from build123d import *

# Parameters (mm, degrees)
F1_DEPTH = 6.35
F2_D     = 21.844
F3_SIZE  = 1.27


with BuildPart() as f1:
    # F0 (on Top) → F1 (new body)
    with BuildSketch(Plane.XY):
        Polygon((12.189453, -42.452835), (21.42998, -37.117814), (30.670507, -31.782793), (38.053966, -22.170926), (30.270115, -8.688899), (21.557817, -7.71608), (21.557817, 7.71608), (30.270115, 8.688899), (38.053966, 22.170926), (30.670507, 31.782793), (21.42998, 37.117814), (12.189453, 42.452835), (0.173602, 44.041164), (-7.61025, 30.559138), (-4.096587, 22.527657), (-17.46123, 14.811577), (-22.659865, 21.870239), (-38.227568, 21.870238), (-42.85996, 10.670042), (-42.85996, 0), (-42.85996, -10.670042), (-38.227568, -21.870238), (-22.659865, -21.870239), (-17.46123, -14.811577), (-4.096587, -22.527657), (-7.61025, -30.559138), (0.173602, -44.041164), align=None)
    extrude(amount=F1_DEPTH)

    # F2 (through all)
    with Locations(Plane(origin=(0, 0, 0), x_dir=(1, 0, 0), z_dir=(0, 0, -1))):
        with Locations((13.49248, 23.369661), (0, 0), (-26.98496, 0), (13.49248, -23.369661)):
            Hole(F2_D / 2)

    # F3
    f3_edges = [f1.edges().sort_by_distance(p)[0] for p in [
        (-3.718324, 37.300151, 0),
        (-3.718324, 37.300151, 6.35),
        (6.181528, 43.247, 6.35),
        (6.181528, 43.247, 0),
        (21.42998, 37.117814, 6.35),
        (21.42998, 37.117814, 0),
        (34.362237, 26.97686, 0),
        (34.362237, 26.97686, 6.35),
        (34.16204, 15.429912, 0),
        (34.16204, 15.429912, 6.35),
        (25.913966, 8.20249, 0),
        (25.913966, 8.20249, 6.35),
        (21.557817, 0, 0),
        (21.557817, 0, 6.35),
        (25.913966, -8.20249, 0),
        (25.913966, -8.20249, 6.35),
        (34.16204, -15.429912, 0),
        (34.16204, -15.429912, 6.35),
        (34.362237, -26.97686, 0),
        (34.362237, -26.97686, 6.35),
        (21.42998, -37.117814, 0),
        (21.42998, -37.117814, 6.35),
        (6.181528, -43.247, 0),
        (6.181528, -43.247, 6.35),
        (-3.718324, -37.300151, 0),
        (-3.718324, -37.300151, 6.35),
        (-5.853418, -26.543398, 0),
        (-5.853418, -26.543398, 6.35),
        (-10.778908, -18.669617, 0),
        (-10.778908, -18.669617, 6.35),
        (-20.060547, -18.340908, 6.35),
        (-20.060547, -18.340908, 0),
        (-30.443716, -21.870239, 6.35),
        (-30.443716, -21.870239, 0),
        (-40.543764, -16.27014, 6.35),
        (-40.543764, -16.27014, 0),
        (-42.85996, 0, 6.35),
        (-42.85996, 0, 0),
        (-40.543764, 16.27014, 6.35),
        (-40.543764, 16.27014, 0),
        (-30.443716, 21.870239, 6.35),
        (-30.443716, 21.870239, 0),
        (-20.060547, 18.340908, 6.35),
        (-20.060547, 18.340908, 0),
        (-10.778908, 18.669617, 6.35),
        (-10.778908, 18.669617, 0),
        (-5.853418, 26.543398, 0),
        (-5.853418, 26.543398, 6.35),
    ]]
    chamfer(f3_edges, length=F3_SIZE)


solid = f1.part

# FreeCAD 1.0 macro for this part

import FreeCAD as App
import Part
import Sketcher
Q = App.Units.Quantity


def edges_at(feature, points):
    """Names of the edges that pass closest to the given points."""
    edges = feature.Shape.Edges
    near = lambda p: min(range(len(edges)), key=lambda i: edges[i].distToShape(Part.Vertex(*p))[0])
    return sorted({f"Edge{near(p) + 1}" for p in points})

doc = App.newDocument("Part")
body = doc.addObject("PartDesign::Body", "Body")

# Sketch on XY plane
sketch1 = doc.addObject("Sketcher::SketchObject", "Sketch")
body.addObject(sketch1)
sketch1.AttachmentSupport = (doc.XY_Plane, [""])
sketch1.MapMode = "FlatFace"
sketch1.addGeometry(Part.LineSegment(App.Vector(12, -42, 0), App.Vector(31, -32, 0)), False)
sketch1.addGeometry(Part.LineSegment(App.Vector(31, -32, 0), App.Vector(38, -22, 0)), False)
sketch1.addGeometry(Part.LineSegment(App.Vector(38, -22, 0), App.Vector(30, -9, 0)), False)
sketch1.addGeometry(Part.LineSegment(App.Vector(30, -9, 0), App.Vector(22, -8, 0)), False)
sketch1.addGeometry(Part.LineSegment(App.Vector(22, -8, 0), App.Vector(22, 8, 0)), False)
sketch1.addGeometry(Part.LineSegment(App.Vector(22, 8, 0), App.Vector(30, 9, 0)), False)
sketch1.addGeometry(Part.LineSegment(App.Vector(30, 9, 0), App.Vector(38, 22, 0)), False)
sketch1.addGeometry(Part.LineSegment(App.Vector(38, 22, 0), App.Vector(31, 32, 0)), False)
sketch1.addGeometry(Part.LineSegment(App.Vector(31, 32, 0), App.Vector(12, 42, 0)), False)
sketch1.addGeometry(Part.LineSegment(App.Vector(12, 42, 0), App.Vector(0, 44, 0)), False)
sketch1.addGeometry(Part.LineSegment(App.Vector(0, 44, 0), App.Vector(-8, 31, 0)), False)
sketch1.addGeometry(Part.LineSegment(App.Vector(-8, 31, 0), App.Vector(-4, 23, 0)), False)
sketch1.addGeometry(Part.LineSegment(App.Vector(-4, 23, 0), App.Vector(-17, 15, 0)), False)
sketch1.addGeometry(Part.LineSegment(App.Vector(-17, 15, 0), App.Vector(-23, 22, 0)), False)
sketch1.addGeometry(Part.LineSegment(App.Vector(-23, 22, 0), App.Vector(-38, 22, 0)), False)
sketch1.addGeometry(Part.LineSegment(App.Vector(-38, 22, 0), App.Vector(-43, 11, 0)), False)
sketch1.addGeometry(Part.LineSegment(App.Vector(-43, 11, 0), App.Vector(-43, -11, 0)), False)
sketch1.addGeometry(Part.LineSegment(App.Vector(-43, -11, 0), App.Vector(-38, -22, 0)), False)
sketch1.addGeometry(Part.LineSegment(App.Vector(-38, -22, 0), App.Vector(-23, -22, 0)), False)
sketch1.addGeometry(Part.LineSegment(App.Vector(-23, -22, 0), App.Vector(-17, -15, 0)), False)
sketch1.addGeometry(Part.LineSegment(App.Vector(-17, -15, 0), App.Vector(-4, -23, 0)), False)
sketch1.addGeometry(Part.LineSegment(App.Vector(-4, -23, 0), App.Vector(-8, -31, 0)), False)
sketch1.addGeometry(Part.LineSegment(App.Vector(-8, -31, 0), App.Vector(0, -44, 0)), False)
sketch1.addGeometry(Part.LineSegment(App.Vector(0, -44, 0), App.Vector(12, -42, 0)), False)
sketch1.addConstraint(Sketcher.Constraint("Coincident", 0, 2, 1, 1))
sketch1.addConstraint(Sketcher.Constraint("Coincident", 1, 2, 2, 1))
sketch1.addConstraint(Sketcher.Constraint("Coincident", 2, 2, 3, 1))
sketch1.addConstraint(Sketcher.Constraint("Coincident", 3, 2, 4, 1))
sketch1.addConstraint(Sketcher.Constraint("Coincident", 4, 2, 5, 1))
sketch1.addConstraint(Sketcher.Constraint("Coincident", 5, 2, 6, 1))
sketch1.addConstraint(Sketcher.Constraint("Coincident", 6, 2, 7, 1))
sketch1.addConstraint(Sketcher.Constraint("Coincident", 7, 2, 8, 1))
sketch1.addConstraint(Sketcher.Constraint("Coincident", 8, 2, 9, 1))
sketch1.addConstraint(Sketcher.Constraint("Coincident", 9, 2, 10, 1))
sketch1.addConstraint(Sketcher.Constraint("Coincident", 10, 2, 11, 1))
sketch1.addConstraint(Sketcher.Constraint("Coincident", 11, 2, 12, 1))
sketch1.addConstraint(Sketcher.Constraint("Coincident", 12, 2, 13, 1))
sketch1.addConstraint(Sketcher.Constraint("Coincident", 13, 2, 14, 1))
sketch1.addConstraint(Sketcher.Constraint("Coincident", 14, 2, 15, 1))
sketch1.addConstraint(Sketcher.Constraint("Coincident", 15, 2, 16, 1))
sketch1.addConstraint(Sketcher.Constraint("Coincident", 16, 2, 17, 1))
sketch1.addConstraint(Sketcher.Constraint("Coincident", 17, 2, 18, 1))
sketch1.addConstraint(Sketcher.Constraint("Coincident", 18, 2, 19, 1))
sketch1.addConstraint(Sketcher.Constraint("Coincident", 19, 2, 20, 1))
sketch1.addConstraint(Sketcher.Constraint("Coincident", 20, 2, 21, 1))
sketch1.addConstraint(Sketcher.Constraint("Coincident", 21, 2, 22, 1))
sketch1.addConstraint(Sketcher.Constraint("Coincident", 22, 2, 23, 1))
sketch1.addConstraint(Sketcher.Constraint("Coincident", 23, 2, 0, 1))
sketch1.addConstraint(Sketcher.Constraint("Vertical", 4))
sketch1.addConstraint(Sketcher.Constraint("Horizontal", 14))
sketch1.addConstraint(Sketcher.Constraint("Vertical", 16))
sketch1.addConstraint(Sketcher.Constraint("Horizontal", 18))
sketch1.addConstraint(Sketcher.Constraint("Symmetric", 2, 2, 5, 2, -1))
sketch1.addConstraint(Sketcher.Constraint("Symmetric", 1, 2, 6, 2, -1))
sketch1.addConstraint(Sketcher.Constraint("Symmetric", 0, 2, 7, 2, -1))
sketch1.addConstraint(Sketcher.Constraint("Symmetric", 14, 2, 17, 2, -1))
sketch1.addConstraint(Sketcher.Constraint("Symmetric", 12, 2, 19, 2, -1))
sketch1.addConstraint(Sketcher.Constraint("Symmetric", 11, 2, 20, 2, -1))
sketch1.addConstraint(Sketcher.Constraint("Symmetric", 10, 2, 21, 2, -1))
sketch1.addConstraint(Sketcher.Constraint("Symmetric", 9, 2, 22, 2, -1))
sketch1.addConstraint(Sketcher.Constraint("Symmetric", 8, 2, 23, 2, -1))
sketch1.addConstraint(Sketcher.Constraint("Perpendicular", 0, 2))
sketch1.addConstraint(Sketcher.Constraint("Perpendicular", 8, 10))
sketch1.addConstraint(Sketcher.Constraint("Perpendicular", 2, 12))
sketch1.addConstraint(Sketcher.Constraint("Vertical", 13, 2, 18, 2))
sketch1.addConstraint(Sketcher.Constraint("Equal", 3, 5))
sketch1.addConstraint(Sketcher.Constraint("Equal", 7, 9))
sketch1.addConstraint(Sketcher.Constraint("Equal", 6, 10))
sketch1.addConstraint(Sketcher.Constraint("Equal", 5, 11))
sketch1.addConstraint(Sketcher.Constraint("Equal", 11, 13))
sketch1.addConstraint(Sketcher.Constraint("Equal", 9, 15))
sketch1.addConstraint(Sketcher.Constraint("Equal", 15, 17))
sketch1.addConstraint(Sketcher.Constraint("Angle", 0, Q("30.000001 deg")))
sketch1.addConstraint(Sketcher.Constraint("DistanceX", 15, 2, -1, 1, Q("1.6874 in")))
sketch1.addConstraint(Sketcher.Constraint("DistanceY", 2, 2, 3, 2, Q("0.0383 in")))
sketch1.addConstraint(Sketcher.Constraint("DistanceY", 11, 2, 10, 2, Q("0.3162 in")))
sketch1.addConstraint(Sketcher.Constraint("DistanceY", 12, 2, 13, 2, Q("0.2779001 in")))
sketch1.addConstraint(Sketcher.Constraint("DistanceY", 4, 1, 4, 2, Q("15.43216 mm")))
sketch1.addConstraint(Sketcher.Constraint("DistanceY", 13, 2, 10, 2, Q("8.688899 mm")))
sketch1.addConstraint(Sketcher.Constraint("DistanceY", 16, 2, 11, 2, Q("33.197699 mm")))
sketch1.addConstraint(Sketcher.Constraint("DistanceX", 14, 2, 14, 1, Q("15.567703 mm")))
sketch1.addConstraint(Sketcher.Constraint("DistanceY", 16, 2, 16, 1, Q("21.340084 mm")))
sketch1.addConstraint(Sketcher.Constraint("DistanceX", 10, 2, -1, 1, Q("7.61025 mm")))
sketch1.addConstraint(Sketcher.Constraint("DistanceX", 12, 2, -1, 1, Q("17.46123 mm")))
sketch1.addConstraint(Sketcher.Constraint("DistanceX", 0, 2, 1, 2, Q("7.383459 mm")))
sketch1.addConstraint(Sketcher.Constraint("DistanceX", 2, 2, 1, 2, Q("7.783851 mm")))
sketch1.addConstraint(Sketcher.Constraint("DistanceY", 7, 2, 8, 2, Q("10.670042 mm")))
pad1 = doc.addObject("PartDesign::Pad", "Pad")
body.addObject(pad1)
pad1.Profile = sketch1
pad1.Length = Q("0.25 in")

# Sketch on XY plane
sketch2 = doc.addObject("Sketcher::SketchObject", "Sketch001")
body.addObject(sketch2)
sketch2.AttachmentSupport = (doc.XY_Plane, [""])
sketch2.MapMode = "FlatFace"
sketch2.addGeometry(Part.Circle(App.Vector(13, -23, 0), App.Vector(0, 0, 1), 11), False)
sketch2.addGeometry(Part.Circle(App.Vector(0, 0, 0), App.Vector(0, 0, 1), 11), False)
sketch2.addGeometry(Part.Circle(App.Vector(-27, 0, 0), App.Vector(0, 0, 1), 11), False)
sketch2.addGeometry(Part.Circle(App.Vector(13, 23, 0), App.Vector(0, 0, 1), 11), False)
sketch2.addConstraint(Sketcher.Constraint("Coincident", 1, 3, -1, 1))
sketch2.addConstraint(Sketcher.Constraint("Equal", 0, 1))
sketch2.addConstraint(Sketcher.Constraint("Equal", 1, 2))
sketch2.addConstraint(Sketcher.Constraint("Equal", 2, 3))
sketch2.addConstraint(Sketcher.Constraint("Symmetric", 0, 3, 3, 3, -1))
sketch2.addConstraint(Sketcher.Constraint("PointOnObject", 2, 3, -1))
sketch2.addConstraint(Sketcher.Constraint("Diameter", 0, Q("0.86 in")))
sketch2.addConstraint(Sketcher.Constraint("DistanceX", -1, 1, 0, 3, Q("0.5312 in")))
sketch2.addConstraint(Sketcher.Constraint("DistanceX", 2, 3, -1, 1, Q("1.0624 in")))
sketch2.addConstraint(Sketcher.Constraint("DistanceY", 0, 3, -1, 1, Q("23.369661 mm")))
doc.recompute()
hole = doc.addObject("PartDesign::Hole", "Hole")
body.addObject(hole)
hole.Profile = sketch2
hole.ThreadType = "None"
hole.Diameter = Q("0.86 in")
hole.DepthType = "ThroughAll"
hole.Reversed = True
doc.recompute()

chamfer = doc.addObject("PartDesign::Chamfer", "Chamfer")
body.addObject(chamfer)
chamfer.Base = (hole, edges_at(hole, [
    (-3.718, 37.3, 0),
    (-3.718, 37.3, 6.35),
    (6.182, 43.247, 6.35),
    (6.182, 43.247, 0),
    (21.43, 37.118, 6.35),
    (21.43, 37.118, 0),
    (34.362, 26.977, 0),
    (34.362, 26.977, 6.35),
    (34.162, 15.43, 0),
    (34.162, 15.43, 6.35),
    (25.914, 8.202, 0),
    (25.914, 8.202, 6.35),
    (21.558, 0, 0),
    (21.558, 0, 6.35),
    (25.914, -8.202, 0),
    (25.914, -8.202, 6.35),
    (34.162, -15.43, 0),
    (34.162, -15.43, 6.35),
    (34.362, -26.977, 0),
    (34.362, -26.977, 6.35),
    (21.43, -37.118, 0),
    (21.43, -37.118, 6.35),
    (6.182, -43.247, 0),
    (6.182, -43.247, 6.35),
    (-3.718, -37.3, 0),
    (-3.718, -37.3, 6.35),
    (-5.853, -26.543, 0),
    (-5.853, -26.543, 6.35),
    (-10.779, -18.67, 0),
    (-10.779, -18.67, 6.35),
    (-20.061, -18.341, 6.35),
    (-20.061, -18.341, 0),
    (-30.444, -21.87, 6.35),
    (-30.444, -21.87, 0),
    (-40.544, -16.27, 6.35),
    (-40.544, -16.27, 0),
    (-42.86, 0, 6.35),
    (-42.86, 0, 0),
    (-40.544, 16.27, 6.35),
    (-40.544, 16.27, 0),
    (-30.444, 21.87, 6.35),
    (-30.444, 21.87, 0),
    (-20.061, 18.341, 6.35),
    (-20.061, 18.341, 0),
    (-10.779, 18.67, 6.35),
    (-10.779, 18.67, 0),
    (-5.853, 26.543, 0),
    (-5.853, 26.543, 6.35),
]))
chamfer.Size = Q("0.05 in")

doc.recompute()
